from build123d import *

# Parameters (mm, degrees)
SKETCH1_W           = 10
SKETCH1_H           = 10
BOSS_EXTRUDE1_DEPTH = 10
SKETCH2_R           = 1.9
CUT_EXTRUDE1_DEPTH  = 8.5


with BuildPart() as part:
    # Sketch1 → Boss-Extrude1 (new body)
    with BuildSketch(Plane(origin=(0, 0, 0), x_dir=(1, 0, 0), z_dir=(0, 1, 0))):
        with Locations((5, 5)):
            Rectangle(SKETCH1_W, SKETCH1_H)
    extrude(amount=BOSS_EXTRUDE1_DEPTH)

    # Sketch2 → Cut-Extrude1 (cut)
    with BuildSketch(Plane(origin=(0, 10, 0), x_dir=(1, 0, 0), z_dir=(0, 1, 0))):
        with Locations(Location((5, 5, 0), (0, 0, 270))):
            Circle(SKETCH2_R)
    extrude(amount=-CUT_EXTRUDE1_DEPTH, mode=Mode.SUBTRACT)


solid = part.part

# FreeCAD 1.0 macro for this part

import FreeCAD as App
import Part
import Sketcher

V = App.Vector


def add_polygon(sketch, points):
    """Adds a closed chain of lines whose ends are joined by coincident constraints."""
    first, n = sketch.GeometryCount, len(points)
    for a, b in zip(points, points[1:] + points[:1]):
        sketch.addGeometry(Part.LineSegment(App.Vector(*a, 0), App.Vector(*b, 0)), False)
    for i in range(n):
        sketch.addConstraint(Sketcher.Constraint("Coincident", first + i, 2, first + (i + 1) % n, 1))

doc = App.newDocument("Part")
body = doc.addObject("PartDesign::Body", "Body")

# Sketch on XZ plane
sketch1 = doc.addObject("Sketcher::SketchObject", "Sketch")
body.addObject(sketch1)
sketch1.AttachmentSupport = (doc.XZ_Plane, [""])
sketch1.MapMode = "FlatFace"
add_polygon(sketch1, [(0, -10), (0, 0), (10, 0), (10, -10)])  # lines 0-3
sketch1.addConstraint(Sketcher.Constraint("Vertical", 0))
sketch1.addConstraint(Sketcher.Constraint("Horizontal", 1))
sketch1.addConstraint(Sketcher.Constraint("Vertical", 2))
sketch1.addConstraint(Sketcher.Constraint("Horizontal", 3))
sketch1.addConstraint(Sketcher.Constraint("Coincident", 0, 2, -1, 1))
sketch1.addConstraint(Sketcher.Constraint("Equal", 3, 0))
sketch1.addConstraint(Sketcher.Constraint("DistanceX", 1, 1, 1, 2, 10.0))
pad1 = doc.addObject("PartDesign::Pad", "Pad")
body.addObject(pad1)
pad1.Profile = sketch1
pad1.Length = 10
pad1.Reversed = True

# Sketch on XZ plane
sketch2 = doc.addObject("Sketcher::SketchObject", "Sketch001")
body.addObject(sketch2)
sketch2.AttachmentSupport = (doc.XZ_Plane, [""])
sketch2.MapMode = "FlatFace"
sketch2.AttachmentOffset = App.Placement(V(0, 0, -10), App.Rotation())
sketch2.addGeometry(Part.Circle(V(5, -5, 0), V(0, 0, 1), 1.9), False)
sketch2.addConstraint(Sketcher.Constraint("Diameter", 0, 3.8))
sketch2.addConstraint(Sketcher.Constraint("DistanceX", -1, 1, 0, 3, 5.0))
sketch2.addConstraint(Sketcher.Constraint("DistanceY", 0, 3, -1, 1, 5.0))
pocket1 = doc.addObject("PartDesign::Pocket", "Pocket")
body.addObject(pocket1)
pocket1.Profile = sketch2
pocket1.Length = 8.5
pocket1.Reversed = True

doc.recompute()
